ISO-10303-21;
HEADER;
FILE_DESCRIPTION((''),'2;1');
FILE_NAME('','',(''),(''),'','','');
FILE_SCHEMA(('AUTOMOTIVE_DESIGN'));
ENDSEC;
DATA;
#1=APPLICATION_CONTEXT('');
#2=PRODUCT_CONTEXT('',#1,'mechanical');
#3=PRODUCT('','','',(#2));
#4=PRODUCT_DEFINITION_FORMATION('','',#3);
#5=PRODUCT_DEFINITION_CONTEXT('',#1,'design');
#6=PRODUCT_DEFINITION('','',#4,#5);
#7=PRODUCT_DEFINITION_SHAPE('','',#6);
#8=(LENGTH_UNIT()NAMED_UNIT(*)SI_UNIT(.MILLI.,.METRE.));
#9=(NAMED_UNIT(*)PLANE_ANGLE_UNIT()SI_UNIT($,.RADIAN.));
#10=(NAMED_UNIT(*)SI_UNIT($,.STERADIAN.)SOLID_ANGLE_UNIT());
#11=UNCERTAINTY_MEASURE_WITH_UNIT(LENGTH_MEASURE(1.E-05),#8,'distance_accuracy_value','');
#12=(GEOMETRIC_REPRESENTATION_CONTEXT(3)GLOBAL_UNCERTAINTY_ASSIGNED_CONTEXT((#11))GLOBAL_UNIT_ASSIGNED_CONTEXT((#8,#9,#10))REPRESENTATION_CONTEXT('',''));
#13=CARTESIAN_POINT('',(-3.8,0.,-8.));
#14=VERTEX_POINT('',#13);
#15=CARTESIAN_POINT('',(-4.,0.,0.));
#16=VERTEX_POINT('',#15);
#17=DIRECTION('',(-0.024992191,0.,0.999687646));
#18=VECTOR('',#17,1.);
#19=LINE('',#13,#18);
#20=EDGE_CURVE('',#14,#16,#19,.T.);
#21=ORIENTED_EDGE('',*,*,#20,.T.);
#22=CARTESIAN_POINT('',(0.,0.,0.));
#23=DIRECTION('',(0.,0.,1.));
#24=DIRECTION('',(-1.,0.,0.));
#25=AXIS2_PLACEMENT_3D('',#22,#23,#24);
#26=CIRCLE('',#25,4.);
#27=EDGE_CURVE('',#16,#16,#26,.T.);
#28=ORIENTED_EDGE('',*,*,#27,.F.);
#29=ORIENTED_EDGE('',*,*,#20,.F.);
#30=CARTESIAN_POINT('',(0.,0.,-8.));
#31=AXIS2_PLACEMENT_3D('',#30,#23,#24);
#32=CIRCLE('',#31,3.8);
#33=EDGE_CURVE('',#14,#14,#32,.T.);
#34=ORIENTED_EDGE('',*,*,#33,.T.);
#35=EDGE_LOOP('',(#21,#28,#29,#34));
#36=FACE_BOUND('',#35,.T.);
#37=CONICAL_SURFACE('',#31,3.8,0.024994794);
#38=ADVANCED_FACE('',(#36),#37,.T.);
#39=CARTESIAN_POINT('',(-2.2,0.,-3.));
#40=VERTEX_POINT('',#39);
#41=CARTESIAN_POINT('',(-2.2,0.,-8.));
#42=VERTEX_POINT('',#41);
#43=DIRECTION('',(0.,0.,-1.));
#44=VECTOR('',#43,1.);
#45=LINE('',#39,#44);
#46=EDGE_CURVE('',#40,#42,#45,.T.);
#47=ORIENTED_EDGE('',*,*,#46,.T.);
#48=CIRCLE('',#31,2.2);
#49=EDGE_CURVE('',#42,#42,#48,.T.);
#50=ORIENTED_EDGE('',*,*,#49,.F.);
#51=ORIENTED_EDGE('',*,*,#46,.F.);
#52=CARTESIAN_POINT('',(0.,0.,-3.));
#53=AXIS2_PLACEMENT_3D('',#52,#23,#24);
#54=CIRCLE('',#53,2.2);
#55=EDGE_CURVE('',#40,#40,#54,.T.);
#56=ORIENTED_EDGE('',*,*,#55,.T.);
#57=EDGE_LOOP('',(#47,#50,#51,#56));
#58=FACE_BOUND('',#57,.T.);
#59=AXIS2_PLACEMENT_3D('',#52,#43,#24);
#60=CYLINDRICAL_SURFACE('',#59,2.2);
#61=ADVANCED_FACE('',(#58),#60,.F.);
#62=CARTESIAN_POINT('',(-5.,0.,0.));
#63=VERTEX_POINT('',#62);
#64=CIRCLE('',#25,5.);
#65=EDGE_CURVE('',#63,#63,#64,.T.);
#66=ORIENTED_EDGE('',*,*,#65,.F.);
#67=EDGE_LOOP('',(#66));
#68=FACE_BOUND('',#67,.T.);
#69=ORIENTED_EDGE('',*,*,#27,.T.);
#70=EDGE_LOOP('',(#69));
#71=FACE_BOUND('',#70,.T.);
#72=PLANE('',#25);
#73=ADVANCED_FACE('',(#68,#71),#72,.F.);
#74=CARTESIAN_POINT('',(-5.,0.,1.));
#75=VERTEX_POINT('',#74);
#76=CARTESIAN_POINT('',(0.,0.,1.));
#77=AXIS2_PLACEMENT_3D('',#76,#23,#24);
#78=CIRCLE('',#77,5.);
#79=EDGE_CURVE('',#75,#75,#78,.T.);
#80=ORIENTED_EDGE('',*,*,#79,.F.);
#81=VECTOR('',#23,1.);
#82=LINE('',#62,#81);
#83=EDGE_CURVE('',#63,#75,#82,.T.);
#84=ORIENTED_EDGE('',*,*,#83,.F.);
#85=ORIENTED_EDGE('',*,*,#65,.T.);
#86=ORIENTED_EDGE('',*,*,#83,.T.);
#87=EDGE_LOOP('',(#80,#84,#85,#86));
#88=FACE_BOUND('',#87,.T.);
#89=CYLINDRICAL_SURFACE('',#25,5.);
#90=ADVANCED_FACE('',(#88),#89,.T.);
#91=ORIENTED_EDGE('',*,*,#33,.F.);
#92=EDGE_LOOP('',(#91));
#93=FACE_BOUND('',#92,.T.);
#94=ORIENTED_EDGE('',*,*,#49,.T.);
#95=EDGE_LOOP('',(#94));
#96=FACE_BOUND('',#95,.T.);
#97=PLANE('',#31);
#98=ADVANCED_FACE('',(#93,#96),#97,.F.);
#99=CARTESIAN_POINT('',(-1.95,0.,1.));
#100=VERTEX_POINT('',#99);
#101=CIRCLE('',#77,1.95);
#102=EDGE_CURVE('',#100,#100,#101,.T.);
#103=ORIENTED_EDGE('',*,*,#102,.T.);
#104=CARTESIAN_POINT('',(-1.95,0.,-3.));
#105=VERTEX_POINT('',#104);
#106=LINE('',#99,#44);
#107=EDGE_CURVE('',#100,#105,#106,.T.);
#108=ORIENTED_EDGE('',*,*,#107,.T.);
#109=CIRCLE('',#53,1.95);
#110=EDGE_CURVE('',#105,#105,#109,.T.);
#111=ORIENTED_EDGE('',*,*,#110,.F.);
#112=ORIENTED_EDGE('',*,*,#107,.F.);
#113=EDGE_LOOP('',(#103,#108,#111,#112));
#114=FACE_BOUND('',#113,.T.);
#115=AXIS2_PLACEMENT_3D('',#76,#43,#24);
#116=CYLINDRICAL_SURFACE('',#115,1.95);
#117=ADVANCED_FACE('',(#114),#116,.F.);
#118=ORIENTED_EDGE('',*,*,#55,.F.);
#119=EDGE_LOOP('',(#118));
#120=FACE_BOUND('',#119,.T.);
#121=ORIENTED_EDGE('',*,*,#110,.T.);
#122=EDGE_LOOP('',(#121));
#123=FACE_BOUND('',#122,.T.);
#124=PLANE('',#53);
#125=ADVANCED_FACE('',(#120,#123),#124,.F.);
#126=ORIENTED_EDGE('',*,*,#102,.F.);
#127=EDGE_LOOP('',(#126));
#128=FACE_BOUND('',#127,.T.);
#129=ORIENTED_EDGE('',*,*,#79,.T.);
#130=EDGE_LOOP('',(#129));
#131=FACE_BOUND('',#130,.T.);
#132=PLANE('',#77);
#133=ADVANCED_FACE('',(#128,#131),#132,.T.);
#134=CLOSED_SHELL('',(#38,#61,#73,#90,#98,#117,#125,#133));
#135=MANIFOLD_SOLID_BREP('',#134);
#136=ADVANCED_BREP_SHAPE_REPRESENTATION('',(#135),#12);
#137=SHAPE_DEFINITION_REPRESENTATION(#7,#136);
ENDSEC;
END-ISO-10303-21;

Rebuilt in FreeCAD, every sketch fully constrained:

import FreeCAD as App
import Part
import Sketcher

doc = App.newDocument("Part")
body = doc.addObject("PartDesign::Body", "Body")

sketch1 = body.newObject("Sketcher::SketchObject", "Sketch")
sketch1.AttachmentSupport = (doc.getObject("XZ_Plane"), [""])
sketch1.MapMode = "FlatFace"
sketch1.addGeometry([
    Part.LineSegment(App.Vector(-1.95, -3, 0), App.Vector(-1.95, 1, 0)),
    Part.LineSegment(App.Vector(-1.95, 1, 0), App.Vector(-5, 1, 0)),
    Part.LineSegment(App.Vector(-5, 1, 0), App.Vector(-5, 0, 0)),
    Part.LineSegment(App.Vector(-5, 0, 0), App.Vector(-4, 0, 0)),
    Part.LineSegment(App.Vector(-4, 0, 0), App.Vector(-3.8, -8, 0)),
    Part.LineSegment(App.Vector(-3.8, -8, 0), App.Vector(-2.2, -8, 0)),
    Part.LineSegment(App.Vector(-2.2, -8, 0), App.Vector(-2.2, -3, 0)),
    Part.LineSegment(App.Vector(-2.2, -3, 0), App.Vector(-1.95, -3, 0)),
], False)
sketch1.addConstraint([
    Sketcher.Constraint("Coincident", 0, 2, 1, 1),
    Sketcher.Constraint("Coincident", 1, 2, 2, 1),
    Sketcher.Constraint("Coincident", 2, 2, 3, 1),
    Sketcher.Constraint("Coincident", 3, 2, 4, 1),
    Sketcher.Constraint("Coincident", 4, 2, 5, 1),
    Sketcher.Constraint("Coincident", 5, 2, 6, 1),
    Sketcher.Constraint("Coincident", 6, 2, 7, 1),
    Sketcher.Constraint("Coincident", 7, 2, 0, 1),
    Sketcher.Constraint("Vertical", 0),
    Sketcher.Constraint("Horizontal", 1),
    Sketcher.Constraint("Vertical", 2),
    Sketcher.Constraint("Horizontal", 3),
    Sketcher.Constraint("Horizontal", 5),
    Sketcher.Constraint("Vertical", 6),
    Sketcher.Constraint("Horizontal", 7),
    Sketcher.Constraint("PointOnObject", 2, 2, -1),
    Sketcher.Constraint("Equal", 3, 2),
    Sketcher.Constraint("DistanceX", 3, 1, 3, 2, 1.0),
    Sketcher.Constraint("DistanceY", 0, 1, 0, 2, 4.0),
    Sketcher.Constraint("DistanceY", 6, 1, 6, 2, 5.0),
    Sketcher.Constraint("DistanceX", 5, 1, 5, 2, 1.6),
    Sketcher.Constraint("DistanceX", 1, 2, -1, 1, 5.0),
    Sketcher.Constraint("DistanceX", 1, 2, 1, 1, 3.05),
    Sketcher.Constraint("DistanceX", 7, 1, 7, 2, 0.25),
])
revolution = body.newObject("PartDesign::Revolution", "Revolution")
revolution.Profile = sketch1
revolution.ReferenceAxis = (sketch1, ["V_Axis"])
revolution.Angle = 360

doc.recompute()
